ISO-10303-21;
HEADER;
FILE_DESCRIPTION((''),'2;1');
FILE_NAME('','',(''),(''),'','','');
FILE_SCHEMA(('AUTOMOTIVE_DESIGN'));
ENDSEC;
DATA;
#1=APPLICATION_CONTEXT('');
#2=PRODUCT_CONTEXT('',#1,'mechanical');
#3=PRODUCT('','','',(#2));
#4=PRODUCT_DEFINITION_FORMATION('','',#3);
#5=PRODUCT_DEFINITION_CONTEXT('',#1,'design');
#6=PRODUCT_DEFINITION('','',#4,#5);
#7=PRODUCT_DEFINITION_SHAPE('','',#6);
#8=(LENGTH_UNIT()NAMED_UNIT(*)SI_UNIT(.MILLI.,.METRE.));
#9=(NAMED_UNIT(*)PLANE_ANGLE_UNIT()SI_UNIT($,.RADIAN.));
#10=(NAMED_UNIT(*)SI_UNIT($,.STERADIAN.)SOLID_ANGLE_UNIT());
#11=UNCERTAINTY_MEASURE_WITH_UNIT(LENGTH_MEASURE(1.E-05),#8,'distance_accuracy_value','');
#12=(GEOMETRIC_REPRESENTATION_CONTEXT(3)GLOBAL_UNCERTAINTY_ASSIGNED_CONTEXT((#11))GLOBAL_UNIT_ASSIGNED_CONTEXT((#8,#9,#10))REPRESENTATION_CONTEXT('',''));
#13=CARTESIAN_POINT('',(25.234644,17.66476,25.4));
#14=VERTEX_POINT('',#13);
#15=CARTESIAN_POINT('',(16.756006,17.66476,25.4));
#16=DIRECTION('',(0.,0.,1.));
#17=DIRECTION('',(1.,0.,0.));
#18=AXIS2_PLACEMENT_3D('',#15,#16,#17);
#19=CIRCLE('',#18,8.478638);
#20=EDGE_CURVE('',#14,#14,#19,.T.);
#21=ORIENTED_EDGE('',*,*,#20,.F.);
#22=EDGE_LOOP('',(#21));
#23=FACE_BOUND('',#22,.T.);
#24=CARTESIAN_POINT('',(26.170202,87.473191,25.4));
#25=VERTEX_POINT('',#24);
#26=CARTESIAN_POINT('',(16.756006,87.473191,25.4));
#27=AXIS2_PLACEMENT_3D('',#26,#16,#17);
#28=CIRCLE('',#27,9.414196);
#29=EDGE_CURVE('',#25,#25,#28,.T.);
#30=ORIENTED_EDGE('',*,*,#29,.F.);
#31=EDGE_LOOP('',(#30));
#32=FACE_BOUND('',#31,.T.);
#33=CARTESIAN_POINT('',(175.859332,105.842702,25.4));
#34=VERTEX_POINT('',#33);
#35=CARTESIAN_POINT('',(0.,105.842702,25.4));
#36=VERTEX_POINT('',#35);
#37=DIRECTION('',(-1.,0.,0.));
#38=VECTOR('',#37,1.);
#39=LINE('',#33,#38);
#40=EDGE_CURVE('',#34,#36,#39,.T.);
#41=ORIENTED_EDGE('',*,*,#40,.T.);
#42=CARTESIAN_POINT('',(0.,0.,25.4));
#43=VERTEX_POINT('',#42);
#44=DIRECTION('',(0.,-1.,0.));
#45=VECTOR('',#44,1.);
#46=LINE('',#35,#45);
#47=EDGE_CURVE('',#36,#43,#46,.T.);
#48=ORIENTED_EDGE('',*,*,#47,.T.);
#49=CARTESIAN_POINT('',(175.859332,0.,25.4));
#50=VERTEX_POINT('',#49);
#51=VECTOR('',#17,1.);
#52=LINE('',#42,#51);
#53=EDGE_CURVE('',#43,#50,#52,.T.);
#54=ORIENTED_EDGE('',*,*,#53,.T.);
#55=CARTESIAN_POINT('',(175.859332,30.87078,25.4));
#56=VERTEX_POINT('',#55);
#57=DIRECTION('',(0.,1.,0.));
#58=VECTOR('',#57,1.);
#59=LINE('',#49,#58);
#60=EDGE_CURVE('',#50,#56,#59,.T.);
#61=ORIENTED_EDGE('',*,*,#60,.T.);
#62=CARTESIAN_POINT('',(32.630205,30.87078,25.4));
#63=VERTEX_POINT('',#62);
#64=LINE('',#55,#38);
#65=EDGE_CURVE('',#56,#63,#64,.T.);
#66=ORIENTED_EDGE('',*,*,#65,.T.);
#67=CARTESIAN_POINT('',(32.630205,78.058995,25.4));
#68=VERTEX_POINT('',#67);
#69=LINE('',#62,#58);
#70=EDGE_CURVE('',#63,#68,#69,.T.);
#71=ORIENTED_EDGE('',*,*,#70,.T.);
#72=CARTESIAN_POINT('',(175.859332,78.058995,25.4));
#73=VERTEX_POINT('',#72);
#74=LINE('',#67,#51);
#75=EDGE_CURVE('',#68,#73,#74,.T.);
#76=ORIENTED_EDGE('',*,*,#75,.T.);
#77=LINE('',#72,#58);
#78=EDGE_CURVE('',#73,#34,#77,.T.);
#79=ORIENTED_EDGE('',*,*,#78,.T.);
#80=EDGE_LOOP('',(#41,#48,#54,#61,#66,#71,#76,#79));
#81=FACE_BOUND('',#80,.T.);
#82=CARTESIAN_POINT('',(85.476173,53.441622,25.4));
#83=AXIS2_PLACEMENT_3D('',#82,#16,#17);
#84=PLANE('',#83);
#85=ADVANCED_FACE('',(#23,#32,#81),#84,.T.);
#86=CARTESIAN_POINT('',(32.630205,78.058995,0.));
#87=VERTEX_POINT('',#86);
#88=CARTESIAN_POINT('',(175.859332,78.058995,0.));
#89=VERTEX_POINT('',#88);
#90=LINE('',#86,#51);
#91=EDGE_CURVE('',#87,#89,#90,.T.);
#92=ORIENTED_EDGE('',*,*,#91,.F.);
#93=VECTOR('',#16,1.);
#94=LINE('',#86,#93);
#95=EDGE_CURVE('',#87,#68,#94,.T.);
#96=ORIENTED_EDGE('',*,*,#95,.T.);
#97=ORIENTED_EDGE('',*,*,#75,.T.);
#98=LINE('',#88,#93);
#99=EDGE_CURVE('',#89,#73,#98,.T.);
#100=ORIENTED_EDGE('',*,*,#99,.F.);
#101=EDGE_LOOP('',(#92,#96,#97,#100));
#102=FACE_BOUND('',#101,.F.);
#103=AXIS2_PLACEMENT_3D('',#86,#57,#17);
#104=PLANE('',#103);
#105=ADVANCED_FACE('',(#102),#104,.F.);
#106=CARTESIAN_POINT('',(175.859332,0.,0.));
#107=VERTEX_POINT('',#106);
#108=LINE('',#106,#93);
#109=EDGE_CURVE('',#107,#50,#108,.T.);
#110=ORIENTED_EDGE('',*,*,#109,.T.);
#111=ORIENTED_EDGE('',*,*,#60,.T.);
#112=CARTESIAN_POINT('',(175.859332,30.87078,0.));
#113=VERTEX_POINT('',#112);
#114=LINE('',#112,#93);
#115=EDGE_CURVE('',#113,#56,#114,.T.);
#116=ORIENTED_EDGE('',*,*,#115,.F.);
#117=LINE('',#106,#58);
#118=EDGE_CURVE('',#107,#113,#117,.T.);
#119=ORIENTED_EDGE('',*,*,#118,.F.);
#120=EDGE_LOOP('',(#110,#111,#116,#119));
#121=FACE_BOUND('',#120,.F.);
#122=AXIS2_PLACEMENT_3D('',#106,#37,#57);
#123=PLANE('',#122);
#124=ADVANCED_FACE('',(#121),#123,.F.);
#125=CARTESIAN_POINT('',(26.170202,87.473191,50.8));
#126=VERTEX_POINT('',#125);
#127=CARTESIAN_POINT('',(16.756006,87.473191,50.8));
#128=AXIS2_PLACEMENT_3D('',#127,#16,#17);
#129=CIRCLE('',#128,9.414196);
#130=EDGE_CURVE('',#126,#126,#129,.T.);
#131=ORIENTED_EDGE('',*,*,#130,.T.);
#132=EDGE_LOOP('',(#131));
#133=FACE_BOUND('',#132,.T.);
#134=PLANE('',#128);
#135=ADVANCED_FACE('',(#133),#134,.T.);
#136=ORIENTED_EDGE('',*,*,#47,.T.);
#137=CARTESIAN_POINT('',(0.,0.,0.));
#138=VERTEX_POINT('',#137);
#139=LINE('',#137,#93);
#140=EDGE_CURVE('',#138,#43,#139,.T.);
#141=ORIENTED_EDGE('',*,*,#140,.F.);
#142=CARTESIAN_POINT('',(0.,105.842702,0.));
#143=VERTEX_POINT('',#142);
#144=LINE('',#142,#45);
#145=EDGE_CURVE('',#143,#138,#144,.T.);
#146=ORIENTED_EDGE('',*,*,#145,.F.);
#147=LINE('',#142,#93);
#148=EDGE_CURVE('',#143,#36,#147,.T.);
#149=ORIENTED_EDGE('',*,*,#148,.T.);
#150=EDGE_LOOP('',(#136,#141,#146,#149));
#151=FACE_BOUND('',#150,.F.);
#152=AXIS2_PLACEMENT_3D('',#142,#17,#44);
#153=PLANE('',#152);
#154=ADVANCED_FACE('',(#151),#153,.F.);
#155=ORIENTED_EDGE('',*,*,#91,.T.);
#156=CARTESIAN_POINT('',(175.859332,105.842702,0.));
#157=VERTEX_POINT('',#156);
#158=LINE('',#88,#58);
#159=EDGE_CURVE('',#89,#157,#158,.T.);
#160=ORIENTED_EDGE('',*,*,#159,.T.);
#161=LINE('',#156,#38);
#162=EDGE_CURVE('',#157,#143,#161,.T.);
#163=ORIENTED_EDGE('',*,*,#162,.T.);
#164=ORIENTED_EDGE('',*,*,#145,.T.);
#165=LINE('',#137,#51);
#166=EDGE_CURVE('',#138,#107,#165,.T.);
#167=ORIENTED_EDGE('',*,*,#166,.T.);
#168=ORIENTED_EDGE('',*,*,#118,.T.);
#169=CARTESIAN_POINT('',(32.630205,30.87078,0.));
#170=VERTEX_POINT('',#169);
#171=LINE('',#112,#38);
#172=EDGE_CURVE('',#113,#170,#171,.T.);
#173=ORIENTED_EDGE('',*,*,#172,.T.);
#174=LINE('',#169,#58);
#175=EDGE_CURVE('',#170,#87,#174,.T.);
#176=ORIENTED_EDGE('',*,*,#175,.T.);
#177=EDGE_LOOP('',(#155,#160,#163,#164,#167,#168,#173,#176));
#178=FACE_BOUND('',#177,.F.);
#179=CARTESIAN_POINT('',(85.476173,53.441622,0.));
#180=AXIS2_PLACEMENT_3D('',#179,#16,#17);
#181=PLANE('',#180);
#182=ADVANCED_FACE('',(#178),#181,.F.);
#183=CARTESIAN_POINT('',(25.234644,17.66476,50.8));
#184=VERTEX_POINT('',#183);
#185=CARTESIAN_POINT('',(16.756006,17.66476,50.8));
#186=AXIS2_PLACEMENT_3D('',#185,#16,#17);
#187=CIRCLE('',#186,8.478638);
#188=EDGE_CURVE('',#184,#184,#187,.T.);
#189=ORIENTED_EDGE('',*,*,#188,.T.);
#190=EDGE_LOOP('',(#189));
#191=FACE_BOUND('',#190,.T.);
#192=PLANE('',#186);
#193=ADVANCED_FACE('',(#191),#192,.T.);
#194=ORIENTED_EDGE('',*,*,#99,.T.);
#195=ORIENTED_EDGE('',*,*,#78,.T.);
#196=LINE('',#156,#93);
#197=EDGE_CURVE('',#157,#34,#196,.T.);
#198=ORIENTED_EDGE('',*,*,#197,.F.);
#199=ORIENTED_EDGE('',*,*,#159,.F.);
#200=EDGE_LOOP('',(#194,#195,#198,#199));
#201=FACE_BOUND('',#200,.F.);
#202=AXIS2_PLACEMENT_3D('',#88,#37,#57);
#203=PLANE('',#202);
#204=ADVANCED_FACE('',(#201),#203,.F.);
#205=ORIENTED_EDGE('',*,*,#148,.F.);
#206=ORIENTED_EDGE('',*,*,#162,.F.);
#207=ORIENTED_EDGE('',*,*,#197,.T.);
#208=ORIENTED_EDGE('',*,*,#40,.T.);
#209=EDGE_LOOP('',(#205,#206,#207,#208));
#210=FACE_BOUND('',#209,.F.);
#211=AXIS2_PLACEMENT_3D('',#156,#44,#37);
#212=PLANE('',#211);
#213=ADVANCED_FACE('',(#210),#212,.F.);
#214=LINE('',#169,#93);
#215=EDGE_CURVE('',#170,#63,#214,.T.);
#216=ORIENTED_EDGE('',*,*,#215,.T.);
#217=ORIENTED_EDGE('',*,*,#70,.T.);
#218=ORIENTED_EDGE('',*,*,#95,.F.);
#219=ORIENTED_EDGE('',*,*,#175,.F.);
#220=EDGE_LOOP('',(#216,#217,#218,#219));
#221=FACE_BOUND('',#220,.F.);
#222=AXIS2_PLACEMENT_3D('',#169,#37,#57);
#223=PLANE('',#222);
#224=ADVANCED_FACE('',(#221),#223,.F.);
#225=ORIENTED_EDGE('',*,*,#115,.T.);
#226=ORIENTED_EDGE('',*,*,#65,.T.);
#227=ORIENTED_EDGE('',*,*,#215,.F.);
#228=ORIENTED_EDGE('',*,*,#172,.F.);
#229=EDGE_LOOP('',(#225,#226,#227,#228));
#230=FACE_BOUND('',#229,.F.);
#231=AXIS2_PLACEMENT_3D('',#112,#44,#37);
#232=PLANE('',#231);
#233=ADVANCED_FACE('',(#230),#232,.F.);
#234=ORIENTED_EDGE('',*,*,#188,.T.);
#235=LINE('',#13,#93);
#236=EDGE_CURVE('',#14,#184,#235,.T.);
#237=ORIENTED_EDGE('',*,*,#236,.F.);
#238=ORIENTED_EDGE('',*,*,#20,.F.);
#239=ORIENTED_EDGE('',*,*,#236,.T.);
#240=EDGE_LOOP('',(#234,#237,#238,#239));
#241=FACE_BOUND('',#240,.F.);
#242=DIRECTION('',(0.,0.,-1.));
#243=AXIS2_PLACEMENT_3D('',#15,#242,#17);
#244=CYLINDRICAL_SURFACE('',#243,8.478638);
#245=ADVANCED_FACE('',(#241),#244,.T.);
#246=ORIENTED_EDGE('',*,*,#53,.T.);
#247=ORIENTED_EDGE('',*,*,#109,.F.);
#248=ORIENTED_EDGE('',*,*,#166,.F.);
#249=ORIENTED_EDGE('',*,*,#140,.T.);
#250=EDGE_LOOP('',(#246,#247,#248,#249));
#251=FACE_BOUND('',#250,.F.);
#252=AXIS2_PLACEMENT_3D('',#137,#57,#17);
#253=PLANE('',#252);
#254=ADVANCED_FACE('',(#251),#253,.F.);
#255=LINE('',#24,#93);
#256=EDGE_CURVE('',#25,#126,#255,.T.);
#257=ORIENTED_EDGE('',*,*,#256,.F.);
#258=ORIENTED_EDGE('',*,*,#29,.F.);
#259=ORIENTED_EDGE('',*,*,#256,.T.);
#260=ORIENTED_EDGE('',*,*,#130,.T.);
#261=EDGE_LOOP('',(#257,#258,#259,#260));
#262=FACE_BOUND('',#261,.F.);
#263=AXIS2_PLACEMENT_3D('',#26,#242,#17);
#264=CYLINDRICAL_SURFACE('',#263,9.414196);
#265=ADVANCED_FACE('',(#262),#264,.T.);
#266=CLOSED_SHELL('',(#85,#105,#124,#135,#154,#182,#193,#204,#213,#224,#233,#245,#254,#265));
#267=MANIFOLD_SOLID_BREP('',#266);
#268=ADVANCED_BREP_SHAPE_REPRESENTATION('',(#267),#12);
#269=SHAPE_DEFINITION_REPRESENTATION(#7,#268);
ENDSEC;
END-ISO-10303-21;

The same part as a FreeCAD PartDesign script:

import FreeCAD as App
import Part
import Sketcher
from FreeCAD import Vector
Q = App.Units.Quantity

doc = App.newDocument("Part")
body = doc.addObject("PartDesign::Body", "Body")

sketch1 = body.newObject("Sketcher::SketchObject", "Sketch")
sketch1.AttachmentSupport = (doc.getObject("XY_Plane"), [""])
sketch1.MapMode = "FlatFace"
sketch1.addGeometry(Part.LineSegment(Vector(0, 106, 0), Vector(0, 0, 0)), False)
sketch1.addGeometry(Part.LineSegment(Vector(0, 0, 0), Vector(176, 0, 0)), False)
sketch1.addGeometry(Part.LineSegment(Vector(176, 0, 0), Vector(176, 31, 0)), False)
sketch1.addGeometry(Part.LineSegment(Vector(176, 31, 0), Vector(33, 31, 0)), False)
sketch1.addGeometry(Part.LineSegment(Vector(33, 31, 0), Vector(33, 78, 0)), False)
sketch1.addGeometry(Part.LineSegment(Vector(33, 78, 0), Vector(176, 78, 0)), False)
sketch1.addGeometry(Part.LineSegment(Vector(176, 78, 0), Vector(176, 106, 0)), False)
sketch1.addGeometry(Part.LineSegment(Vector(176, 106, 0), Vector(0, 106, 0)), False)
sketch1.addConstraint(Sketcher.Constraint("Coincident", 0, 2, 1, 1))
sketch1.addConstraint(Sketcher.Constraint("Coincident", 1, 2, 2, 1))
sketch1.addConstraint(Sketcher.Constraint("Coincident", 2, 2, 3, 1))
sketch1.addConstraint(Sketcher.Constraint("Coincident", 3, 2, 4, 1))
sketch1.addConstraint(Sketcher.Constraint("Coincident", 4, 2, 5, 1))
sketch1.addConstraint(Sketcher.Constraint("Coincident", 5, 2, 6, 1))
sketch1.addConstraint(Sketcher.Constraint("Coincident", 6, 2, 7, 1))
sketch1.addConstraint(Sketcher.Constraint("Coincident", 7, 2, 0, 1))
sketch1.addConstraint(Sketcher.Constraint("Vertical", 0))
sketch1.addConstraint(Sketcher.Constraint("Horizontal", 1))
sketch1.addConstraint(Sketcher.Constraint("Vertical", 2))
sketch1.addConstraint(Sketcher.Constraint("Horizontal", 3))
sketch1.addConstraint(Sketcher.Constraint("Vertical", 4))
sketch1.addConstraint(Sketcher.Constraint("Horizontal", 5))
sketch1.addConstraint(Sketcher.Constraint("Vertical", 6))
sketch1.addConstraint(Sketcher.Constraint("Horizontal", 7))
sketch1.addConstraint(Sketcher.Constraint("Coincident", 0, 2, -1, 1))
sketch1.addConstraint(Sketcher.Constraint("Vertical", 2, 2, 5, 2))
sketch1.addConstraint(Sketcher.Constraint("DistanceX", 1, 1, 1, 2, Q("175.859332 mm")))
sketch1.addConstraint(Sketcher.Constraint("DistanceY", 2, 1, 2, 2, Q("30.87078 mm")))
sketch1.addConstraint(Sketcher.Constraint("DistanceX", 3, 2, 3, 1, Q("143.229127 mm")))
sketch1.addConstraint(Sketcher.Constraint("DistanceY", 0, 2, 0, 1, Q("105.842702 mm")))
sketch1.addConstraint(Sketcher.Constraint("DistanceY", 4, 1, 4, 2, Q("47.188215 mm")))
pad1 = body.newObject("PartDesign::Pad", "Pad")
pad1.Profile = sketch1
pad1.Length = Q("1 in")

sketch2 = body.newObject("Sketcher::SketchObject", "Sketch001")
sketch2.AttachmentSupport = (doc.getObject("XY_Plane"), [""])
sketch2.MapMode = "FlatFace"
sketch2.AttachmentOffset = App.Placement(Vector(0, 0, 1 * 25.4), App.Rotation())
sketch2.addGeometry(Part.Circle(Vector(17, 87, 0), Vector(0, 0, 1), 9), False)
sketch2.addGeometry(Part.Circle(Vector(17, 18, 0), Vector(0, 0, 1), 8), False)
sketch2.addConstraint(Sketcher.Constraint("Vertical", 0, 3, 1, 3))
sketch2.addConstraint(Sketcher.Constraint("Diameter", 0, Q("18.828392 mm")))
sketch2.addConstraint(Sketcher.Constraint("Diameter", 1, Q("16.957276 mm")))
sketch2.addConstraint(Sketcher.Constraint("DistanceY", -1, 1, 0, 3, Q("87.473191 mm")))
sketch2.addConstraint(Sketcher.Constraint("DistanceY", -1, 1, 1, 3, Q("17.66476 mm")))
sketch2.addConstraint(Sketcher.Constraint("DistanceX", -1, 1, 0, 3, Q("16.756006 mm")))
pad2 = body.newObject("PartDesign::Pad", "Pad001")
pad2.Profile = sketch2
pad2.Length = Q("1 in")

doc.recompute()
